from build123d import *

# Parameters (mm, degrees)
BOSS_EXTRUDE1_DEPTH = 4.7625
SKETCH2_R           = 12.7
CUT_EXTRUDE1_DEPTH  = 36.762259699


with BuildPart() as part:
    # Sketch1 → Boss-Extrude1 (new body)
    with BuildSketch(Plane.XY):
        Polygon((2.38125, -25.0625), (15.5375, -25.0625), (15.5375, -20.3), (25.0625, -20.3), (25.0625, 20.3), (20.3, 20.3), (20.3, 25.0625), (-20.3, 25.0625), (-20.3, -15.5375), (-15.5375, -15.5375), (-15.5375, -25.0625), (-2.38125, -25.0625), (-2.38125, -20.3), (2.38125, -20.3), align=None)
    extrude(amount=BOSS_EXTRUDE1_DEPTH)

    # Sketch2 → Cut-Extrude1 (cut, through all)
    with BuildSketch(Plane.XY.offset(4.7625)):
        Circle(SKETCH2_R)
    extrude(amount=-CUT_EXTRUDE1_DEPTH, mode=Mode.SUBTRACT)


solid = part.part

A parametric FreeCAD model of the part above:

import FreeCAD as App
import Part
import Sketcher
Q = App.Units.Quantity

doc = App.newDocument("Part")
body = doc.addObject("PartDesign::Body", "Body")

# Sketch on XY plane
sketch1 = doc.addObject("Sketcher::SketchObject", "Sketch")
body.addObject(sketch1)
sketch1.AttachmentSupport = (doc.XY_Plane, [""])
sketch1.MapMode = "FlatFace"
sketch1.addGeometry([
    Part.LineSegment(App.Vector(2.4, -25.1, 0), App.Vector(15.5, -25.1, 0)),  # 0
    Part.LineSegment(App.Vector(15.5, -25.1, 0), App.Vector(15.5, -20.3, 0)),  # 1
    Part.LineSegment(App.Vector(15.5, -20.3, 0), App.Vector(25.1, -20.3, 0)),  # 2
    Part.LineSegment(App.Vector(25.1, -20.3, 0), App.Vector(25.1, 20.3, 0)),  # 3
    Part.LineSegment(App.Vector(25.1, 20.3, 0), App.Vector(20.3, 20.3, 0)),  # 4
    Part.LineSegment(App.Vector(20.3, 20.3, 0), App.Vector(20.3, 25.1, 0)),  # 5
    Part.LineSegment(App.Vector(20.3, 25.1, 0), App.Vector(-20.3, 25.1, 0)),  # 6
    Part.LineSegment(App.Vector(-20.3, 25.1, 0), App.Vector(-20.3, -15.5, 0)),  # 7
    Part.LineSegment(App.Vector(-20.3, -15.5, 0), App.Vector(-15.5, -15.5, 0)),  # 8
    Part.LineSegment(App.Vector(-15.5, -15.5, 0), App.Vector(-15.5, -25.1, 0)),  # 9
    Part.LineSegment(App.Vector(-15.5, -25.1, 0), App.Vector(-2.4, -25.1, 0)),  # 10
    Part.LineSegment(App.Vector(-2.4, -25.1, 0), App.Vector(-2.4, -20.3, 0)),  # 11
    Part.LineSegment(App.Vector(-2.4, -20.3, 0), App.Vector(2.4, -20.3, 0)),  # 12
    Part.LineSegment(App.Vector(2.4, -20.3, 0), App.Vector(2.4, -25.1, 0)),  # 13
], False)
sketch1.addConstraint([
    Sketcher.Constraint("Coincident", 0, 2, 1, 1),
    Sketcher.Constraint("Coincident", 1, 2, 2, 1),
    Sketcher.Constraint("Coincident", 2, 2, 3, 1),
    Sketcher.Constraint("Coincident", 3, 2, 4, 1),
    Sketcher.Constraint("Coincident", 4, 2, 5, 1),
    Sketcher.Constraint("Coincident", 5, 2, 6, 1),
    Sketcher.Constraint("Coincident", 6, 2, 7, 1),
    Sketcher.Constraint("Coincident", 7, 2, 8, 1),
    Sketcher.Constraint("Coincident", 8, 2, 9, 1),
    Sketcher.Constraint("Coincident", 9, 2, 10, 1),
    Sketcher.Constraint("Coincident", 10, 2, 11, 1),
    Sketcher.Constraint("Coincident", 11, 2, 12, 1),
    Sketcher.Constraint("Coincident", 12, 2, 13, 1),
    Sketcher.Constraint("Coincident", 13, 2, 0, 1),
    Sketcher.Constraint("Horizontal", 0),
    Sketcher.Constraint("Vertical", 1),
    Sketcher.Constraint("Horizontal", 2),
    Sketcher.Constraint("Vertical", 3),
    Sketcher.Constraint("Horizontal", 4),
    Sketcher.Constraint("Vertical", 5),
    Sketcher.Constraint("Horizontal", 6),
    Sketcher.Constraint("Vertical", 7),
    Sketcher.Constraint("Horizontal", 8),
    Sketcher.Constraint("Vertical", 9),
    Sketcher.Constraint("Horizontal", 10),
    Sketcher.Constraint("Vertical", 11),
    Sketcher.Constraint("Horizontal", 12),
    Sketcher.Constraint("Vertical", 13),
    Sketcher.Constraint("Symmetric", 0, 2, 9, 2, -2),
    Sketcher.Constraint("Horizontal", 2, 2, 11, 2),
    Sketcher.Constraint("Equal", 4, 8),
    Sketcher.Constraint("Equal", 0, 10),
    Sketcher.Constraint("Equal", 8, 12),
    Sketcher.Constraint("Equal", 12, 1),
    Sketcher.Constraint("Equal", 6, 3),
    Sketcher.Constraint("Equal", 1, 5),
    Sketcher.Constraint("Equal", 3, 7),
    Sketcher.Constraint("Equal", 2, 9),
    Sketcher.Constraint("DistanceX", 2, 1, 2, 2, Q("0.375 in")),
    Sketcher.Constraint("DistanceX", 6, 2, 6, 1, Q("40.6 mm")),
    Sketcher.Constraint("DistanceY", 0, 2, -1, 1, Q("25.0625 mm")),
])
pad1 = doc.addObject("PartDesign::Pad", "Pad")
body.addObject(pad1)
pad1.Profile = sketch1
pad1.Length = Q("0.1875 in")

# Sketch on XY plane
sketch2 = doc.addObject("Sketcher::SketchObject", "Sketch001")
body.addObject(sketch2)
sketch2.AttachmentSupport = (doc.XY_Plane, [""])
sketch2.MapMode = "FlatFace"
sketch2.AttachmentOffset = App.Placement(App.Vector(0, 0, 0.1875 * 25.4), App.Rotation())
sketch2.addGeometry(Part.Circle(App.Vector(0, 0, 0), App.Vector(0, 0, 1), 13), False)
sketch2.addConstraint([
    Sketcher.Constraint("Coincident", 0, 3, -1, 1),
    Sketcher.Constraint("Diameter", 0, Q("1 in")),
])
pocket1 = doc.addObject("PartDesign::Pocket", "Pocket")
body.addObject(pocket1)
pocket1.Profile = sketch2
pocket1.Type = "ThroughAll"

doc.recompute()
